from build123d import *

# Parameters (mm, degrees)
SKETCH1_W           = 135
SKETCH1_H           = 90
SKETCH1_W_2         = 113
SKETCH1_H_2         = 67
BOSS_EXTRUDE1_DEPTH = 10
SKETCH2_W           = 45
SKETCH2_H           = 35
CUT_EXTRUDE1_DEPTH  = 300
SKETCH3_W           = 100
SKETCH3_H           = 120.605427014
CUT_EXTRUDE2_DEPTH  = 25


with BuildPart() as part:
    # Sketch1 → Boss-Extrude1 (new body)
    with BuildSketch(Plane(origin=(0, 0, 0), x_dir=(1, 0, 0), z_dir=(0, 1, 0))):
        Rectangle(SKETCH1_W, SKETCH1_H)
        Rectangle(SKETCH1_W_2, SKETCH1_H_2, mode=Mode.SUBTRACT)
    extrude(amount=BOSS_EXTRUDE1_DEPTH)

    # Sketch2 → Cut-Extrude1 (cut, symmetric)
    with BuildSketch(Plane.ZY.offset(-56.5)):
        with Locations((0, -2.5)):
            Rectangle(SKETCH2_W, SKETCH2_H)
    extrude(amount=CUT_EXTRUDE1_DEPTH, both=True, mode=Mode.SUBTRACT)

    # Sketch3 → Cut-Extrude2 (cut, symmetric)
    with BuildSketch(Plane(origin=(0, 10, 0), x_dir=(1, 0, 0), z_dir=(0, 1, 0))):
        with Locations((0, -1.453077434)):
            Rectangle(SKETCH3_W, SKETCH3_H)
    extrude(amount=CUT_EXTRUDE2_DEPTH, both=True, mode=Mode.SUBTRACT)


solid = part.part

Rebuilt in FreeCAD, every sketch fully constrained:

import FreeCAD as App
import Part
import Sketcher
from FreeCAD import Vector
Q = App.Units.Quantity


def add_polygon(sketch, points):
    """Adds a closed chain of lines whose ends are joined by coincident constraints."""
    first, n = sketch.GeometryCount, len(points)
    for a, b in zip(points, points[1:] + points[:1]):
        sketch.addGeometry(Part.LineSegment(App.Vector(*a, 0), App.Vector(*b, 0)), False)
    for i in range(n):
        sketch.addConstraint(Sketcher.Constraint("Coincident", first + i, 2, first + (i + 1) % n, 1))

doc = App.newDocument("Part")
body = doc.addObject("PartDesign::Body", "Body")
body.AllowCompound = True

# Sketch on XZ plane
sketch1 = doc.addObject("Sketcher::SketchObject", "Sketch")
body.addObject(sketch1)
sketch1.AttachmentSupport = (doc.XZ_Plane, [""])
sketch1.MapMode = "FlatFace"
add_polygon(sketch1, [(-68, -45), (-68, 45), (68, 45), (68, -45)])  # lines 0-3
add_polygon(sketch1, [(56, 34), (-56, 34), (-56, -34), (56, -34)])  # lines 4-7
sketch1.addConstraint([
    Sketcher.Constraint("Vertical", 0),
    Sketcher.Constraint("Horizontal", 1),
    Sketcher.Constraint("Vertical", 2),
    Sketcher.Constraint("Horizontal", 3),
    Sketcher.Constraint("Horizontal", 4),
    Sketcher.Constraint("Vertical", 5),
    Sketcher.Constraint("Horizontal", 6),
    Sketcher.Constraint("Vertical", 7),
    Sketcher.Constraint("Symmetric", 0, 2, 2, 2, -1, 1),
    Sketcher.Constraint("Symmetric", 4, 2, 6, 2, -1, 1),
    Sketcher.Constraint("DistanceX", 1, 1, 1, 2, Q("135 mm")),
    Sketcher.Constraint("DistanceX", 4, 2, 4, 1, Q("113 mm")),
    Sketcher.Constraint("DistanceY", 0, 1, 0, 2, Q("90 mm")),
    Sketcher.Constraint("DistanceY", 5, 2, 5, 1, Q("67 mm")),
])
pad1 = doc.addObject("PartDesign::Pad", "Pad")
body.addObject(pad1)
pad1.Profile = sketch1
pad1.Length = 10
pad1.Reversed = True

# Sketch on YZ plane
sketch2 = doc.addObject("Sketcher::SketchObject", "Sketch001")
body.addObject(sketch2)
sketch2.AttachmentSupport = (doc.YZ_Plane, [""])
sketch2.MapMode = "FlatFace"
sketch2.AttachmentOffset = App.Placement(Vector(0, 0, 56.5), App.Rotation())
add_polygon(sketch2, [(15, -22), (-20, -22), (-20, 22), (15, 22)])  # lines 0-3
sketch2.addConstraint([
    Sketcher.Constraint("Horizontal", 0),
    Sketcher.Constraint("Vertical", 1),
    Sketcher.Constraint("Horizontal", 2),
    Sketcher.Constraint("Vertical", 3),
    Sketcher.Constraint("DistanceX", 0, 2, 0, 1, Q("35 mm")),
    Sketcher.Constraint("DistanceY", 1, 1, 1, 2, Q("45 mm")),
    Sketcher.Constraint("DistanceX", 0, 2, -1, 1, Q("20 mm")),
    Sketcher.Constraint("DistanceY", 0, 2, -1, 1, Q("22.5 mm")),
])
pocket1 = doc.addObject("PartDesign::Pocket", "Pocket")
body.addObject(pocket1)
pocket1.Profile = sketch2
pocket1.Length = 600
pocket1.Midplane = True

# Sketch on XZ plane
sketch3 = doc.addObject("Sketcher::SketchObject", "Sketch002")
body.addObject(sketch3)
sketch3.AttachmentSupport = (doc.XZ_Plane, [""])
sketch3.MapMode = "FlatFace"
sketch3.AttachmentOffset = App.Placement(Vector(0, 0, -10), App.Rotation())
add_polygon(sketch3, [(-50, -59), (-50, 62), (50, 62), (50, -59)])  # lines 0-3
sketch3.addConstraint([
    Sketcher.Constraint("Vertical", 0),
    Sketcher.Constraint("Horizontal", 1),
    Sketcher.Constraint("Vertical", 2),
    Sketcher.Constraint("Horizontal", 3),
    Sketcher.Constraint("DistanceX", 1, 1, 1, 2, Q("100 mm")),
    Sketcher.Constraint("DistanceX", 0, 2, -1, 1, Q("50 mm")),
    Sketcher.Constraint("DistanceY", 0, 1, 0, 2, Q("120.605427 mm")),
    Sketcher.Constraint("DistanceY", -1, 1, 0, 2, Q("61.755791 mm")),
])
pocket2 = doc.addObject("PartDesign::Pocket", "Pocket001")
body.addObject(pocket2)
pocket2.Profile = sketch3
pocket2.Length = 50
pocket2.Midplane = True

doc.recompute()
